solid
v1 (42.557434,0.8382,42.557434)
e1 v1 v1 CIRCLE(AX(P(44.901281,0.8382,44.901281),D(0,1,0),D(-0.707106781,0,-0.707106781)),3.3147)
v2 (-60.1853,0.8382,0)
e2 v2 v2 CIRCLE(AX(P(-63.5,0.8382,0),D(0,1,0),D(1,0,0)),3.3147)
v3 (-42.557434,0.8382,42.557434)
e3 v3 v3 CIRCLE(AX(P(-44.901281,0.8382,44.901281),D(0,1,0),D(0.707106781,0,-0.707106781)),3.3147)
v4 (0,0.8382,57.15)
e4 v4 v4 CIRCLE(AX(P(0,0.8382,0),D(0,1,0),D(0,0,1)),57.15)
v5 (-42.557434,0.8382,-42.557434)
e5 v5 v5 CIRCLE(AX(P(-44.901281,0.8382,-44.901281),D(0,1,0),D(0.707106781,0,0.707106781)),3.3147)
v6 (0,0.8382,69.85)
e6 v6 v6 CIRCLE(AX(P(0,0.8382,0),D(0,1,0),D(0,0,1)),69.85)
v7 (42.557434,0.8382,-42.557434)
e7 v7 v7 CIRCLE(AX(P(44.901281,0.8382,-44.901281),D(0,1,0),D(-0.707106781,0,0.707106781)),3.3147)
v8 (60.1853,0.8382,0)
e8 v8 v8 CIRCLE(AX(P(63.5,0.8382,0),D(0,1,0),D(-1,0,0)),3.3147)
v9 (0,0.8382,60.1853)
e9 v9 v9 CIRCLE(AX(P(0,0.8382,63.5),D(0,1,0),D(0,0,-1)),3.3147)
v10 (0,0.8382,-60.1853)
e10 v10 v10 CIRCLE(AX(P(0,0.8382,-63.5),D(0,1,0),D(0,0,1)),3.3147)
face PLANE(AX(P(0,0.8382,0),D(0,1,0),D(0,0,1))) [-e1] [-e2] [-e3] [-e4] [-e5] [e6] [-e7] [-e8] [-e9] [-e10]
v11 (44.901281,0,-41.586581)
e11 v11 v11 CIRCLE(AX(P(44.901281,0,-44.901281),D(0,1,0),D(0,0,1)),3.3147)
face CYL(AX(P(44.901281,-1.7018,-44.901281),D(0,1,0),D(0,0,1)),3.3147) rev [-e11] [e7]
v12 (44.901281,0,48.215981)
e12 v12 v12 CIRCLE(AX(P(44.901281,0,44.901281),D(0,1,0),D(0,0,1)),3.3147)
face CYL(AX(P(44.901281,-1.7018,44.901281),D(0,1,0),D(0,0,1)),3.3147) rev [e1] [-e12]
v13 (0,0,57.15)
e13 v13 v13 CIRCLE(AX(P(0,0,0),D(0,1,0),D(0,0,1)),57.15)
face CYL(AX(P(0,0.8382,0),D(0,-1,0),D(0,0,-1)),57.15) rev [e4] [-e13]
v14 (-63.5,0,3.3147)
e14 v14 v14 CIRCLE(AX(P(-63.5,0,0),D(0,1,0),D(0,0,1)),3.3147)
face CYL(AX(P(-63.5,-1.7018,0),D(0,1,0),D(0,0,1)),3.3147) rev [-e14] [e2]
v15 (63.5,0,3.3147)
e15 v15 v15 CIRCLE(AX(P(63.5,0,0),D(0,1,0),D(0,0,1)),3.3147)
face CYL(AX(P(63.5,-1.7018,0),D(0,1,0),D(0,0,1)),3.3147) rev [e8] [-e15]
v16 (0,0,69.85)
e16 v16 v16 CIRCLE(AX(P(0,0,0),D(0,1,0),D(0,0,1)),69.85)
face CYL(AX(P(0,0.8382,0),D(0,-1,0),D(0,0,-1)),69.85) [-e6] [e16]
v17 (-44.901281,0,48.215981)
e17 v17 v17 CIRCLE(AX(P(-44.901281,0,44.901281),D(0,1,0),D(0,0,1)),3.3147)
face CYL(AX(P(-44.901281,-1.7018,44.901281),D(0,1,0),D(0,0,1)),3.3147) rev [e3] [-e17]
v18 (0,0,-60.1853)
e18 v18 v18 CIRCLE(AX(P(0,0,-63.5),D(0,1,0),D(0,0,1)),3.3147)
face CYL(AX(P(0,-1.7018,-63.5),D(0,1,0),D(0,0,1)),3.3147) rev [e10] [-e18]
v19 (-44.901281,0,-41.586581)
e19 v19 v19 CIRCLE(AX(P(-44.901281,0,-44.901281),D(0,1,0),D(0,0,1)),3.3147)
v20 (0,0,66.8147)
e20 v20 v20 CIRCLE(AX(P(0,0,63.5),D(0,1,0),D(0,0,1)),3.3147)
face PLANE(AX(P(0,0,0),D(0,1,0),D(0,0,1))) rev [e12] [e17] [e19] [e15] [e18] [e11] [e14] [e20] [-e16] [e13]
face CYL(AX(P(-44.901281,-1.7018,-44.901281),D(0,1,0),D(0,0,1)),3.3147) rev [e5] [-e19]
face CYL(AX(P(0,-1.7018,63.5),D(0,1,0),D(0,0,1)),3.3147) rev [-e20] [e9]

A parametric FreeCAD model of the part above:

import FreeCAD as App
import Part
import Sketcher
from FreeCAD import Vector
Q = App.Units.Quantity

doc = App.newDocument("Part")
body = doc.addObject("PartDesign::Body", "Body")

# Sketch on XZ plane
sketch1 = doc.addObject("Sketcher::SketchObject", "Sketch")
body.addObject(sketch1)
sketch1.AttachmentSupport = (doc.XZ_Plane, [""])
sketch1.MapMode = "FlatFace"
sketch1.addGeometry(Part.Circle(Vector(0, 0, 0), Vector(0, 0, 1), 70), False)
sketch1.addGeometry(Part.Circle(Vector(0, 0, 0), Vector(0, 0, 1), 57), False)
sketch1.addConstraint(Sketcher.Constraint("Coincident", 0, 3, -1, 1))
sketch1.addConstraint(Sketcher.Constraint("Coincident", 1, 3, -1, 1))
sketch1.addConstraint(Sketcher.Constraint("Diameter", 0, Q("5.5 in")))
sketch1.addConstraint(Sketcher.Constraint("Diameter", 1, Q("4.5 in")))
pad1 = doc.addObject("PartDesign::Pad", "Pad")
body.addObject(pad1)
pad1.Profile = sketch1
pad1.Length = Q("0.033 in")
pad1.Reversed = True

# Sketch on XZ plane
sketch2 = doc.addObject("Sketcher::SketchObject", "Sketch001")
body.addObject(sketch2)
sketch2.AttachmentSupport = (doc.XZ_Plane, [""])
sketch2.MapMode = "FlatFace"
sketch2.AttachmentOffset = App.Placement(Vector(0, 0, -0.033 * 25.4), App.Rotation())
sketch2.addGeometry(Part.Circle(Vector(0, -63.5, 0), Vector(0, 0, 1), 3.3), False)
sketch2.addConstraint(Sketcher.Constraint("PointOnObject", 0, 3, -2))
sketch2.addConstraint(Sketcher.Constraint("Diameter", 0, Q("0.261 in")))
sketch2.addConstraint(Sketcher.Constraint("DistanceY", 0, 3, -1, 1, Q("2.5 in")))
pocket1 = doc.addObject("PartDesign::Pocket", "Pocket")
body.addObject(pocket1)
pocket1.Profile = sketch2
pocket1.Length = Q("0.1 in")
pocket1.Reversed = True
doc.recompute()

polarpattern = doc.addObject("PartDesign::PolarPattern", "PolarPattern")
body.addObject(polarpattern)
polarpattern.Originals = [pocket1]
polarpattern.Axis = (doc.Y_Axis, [""])
polarpattern.Angle = 360
polarpattern.Occurrences = 8
body.Tip = polarpattern

doc.recompute()
